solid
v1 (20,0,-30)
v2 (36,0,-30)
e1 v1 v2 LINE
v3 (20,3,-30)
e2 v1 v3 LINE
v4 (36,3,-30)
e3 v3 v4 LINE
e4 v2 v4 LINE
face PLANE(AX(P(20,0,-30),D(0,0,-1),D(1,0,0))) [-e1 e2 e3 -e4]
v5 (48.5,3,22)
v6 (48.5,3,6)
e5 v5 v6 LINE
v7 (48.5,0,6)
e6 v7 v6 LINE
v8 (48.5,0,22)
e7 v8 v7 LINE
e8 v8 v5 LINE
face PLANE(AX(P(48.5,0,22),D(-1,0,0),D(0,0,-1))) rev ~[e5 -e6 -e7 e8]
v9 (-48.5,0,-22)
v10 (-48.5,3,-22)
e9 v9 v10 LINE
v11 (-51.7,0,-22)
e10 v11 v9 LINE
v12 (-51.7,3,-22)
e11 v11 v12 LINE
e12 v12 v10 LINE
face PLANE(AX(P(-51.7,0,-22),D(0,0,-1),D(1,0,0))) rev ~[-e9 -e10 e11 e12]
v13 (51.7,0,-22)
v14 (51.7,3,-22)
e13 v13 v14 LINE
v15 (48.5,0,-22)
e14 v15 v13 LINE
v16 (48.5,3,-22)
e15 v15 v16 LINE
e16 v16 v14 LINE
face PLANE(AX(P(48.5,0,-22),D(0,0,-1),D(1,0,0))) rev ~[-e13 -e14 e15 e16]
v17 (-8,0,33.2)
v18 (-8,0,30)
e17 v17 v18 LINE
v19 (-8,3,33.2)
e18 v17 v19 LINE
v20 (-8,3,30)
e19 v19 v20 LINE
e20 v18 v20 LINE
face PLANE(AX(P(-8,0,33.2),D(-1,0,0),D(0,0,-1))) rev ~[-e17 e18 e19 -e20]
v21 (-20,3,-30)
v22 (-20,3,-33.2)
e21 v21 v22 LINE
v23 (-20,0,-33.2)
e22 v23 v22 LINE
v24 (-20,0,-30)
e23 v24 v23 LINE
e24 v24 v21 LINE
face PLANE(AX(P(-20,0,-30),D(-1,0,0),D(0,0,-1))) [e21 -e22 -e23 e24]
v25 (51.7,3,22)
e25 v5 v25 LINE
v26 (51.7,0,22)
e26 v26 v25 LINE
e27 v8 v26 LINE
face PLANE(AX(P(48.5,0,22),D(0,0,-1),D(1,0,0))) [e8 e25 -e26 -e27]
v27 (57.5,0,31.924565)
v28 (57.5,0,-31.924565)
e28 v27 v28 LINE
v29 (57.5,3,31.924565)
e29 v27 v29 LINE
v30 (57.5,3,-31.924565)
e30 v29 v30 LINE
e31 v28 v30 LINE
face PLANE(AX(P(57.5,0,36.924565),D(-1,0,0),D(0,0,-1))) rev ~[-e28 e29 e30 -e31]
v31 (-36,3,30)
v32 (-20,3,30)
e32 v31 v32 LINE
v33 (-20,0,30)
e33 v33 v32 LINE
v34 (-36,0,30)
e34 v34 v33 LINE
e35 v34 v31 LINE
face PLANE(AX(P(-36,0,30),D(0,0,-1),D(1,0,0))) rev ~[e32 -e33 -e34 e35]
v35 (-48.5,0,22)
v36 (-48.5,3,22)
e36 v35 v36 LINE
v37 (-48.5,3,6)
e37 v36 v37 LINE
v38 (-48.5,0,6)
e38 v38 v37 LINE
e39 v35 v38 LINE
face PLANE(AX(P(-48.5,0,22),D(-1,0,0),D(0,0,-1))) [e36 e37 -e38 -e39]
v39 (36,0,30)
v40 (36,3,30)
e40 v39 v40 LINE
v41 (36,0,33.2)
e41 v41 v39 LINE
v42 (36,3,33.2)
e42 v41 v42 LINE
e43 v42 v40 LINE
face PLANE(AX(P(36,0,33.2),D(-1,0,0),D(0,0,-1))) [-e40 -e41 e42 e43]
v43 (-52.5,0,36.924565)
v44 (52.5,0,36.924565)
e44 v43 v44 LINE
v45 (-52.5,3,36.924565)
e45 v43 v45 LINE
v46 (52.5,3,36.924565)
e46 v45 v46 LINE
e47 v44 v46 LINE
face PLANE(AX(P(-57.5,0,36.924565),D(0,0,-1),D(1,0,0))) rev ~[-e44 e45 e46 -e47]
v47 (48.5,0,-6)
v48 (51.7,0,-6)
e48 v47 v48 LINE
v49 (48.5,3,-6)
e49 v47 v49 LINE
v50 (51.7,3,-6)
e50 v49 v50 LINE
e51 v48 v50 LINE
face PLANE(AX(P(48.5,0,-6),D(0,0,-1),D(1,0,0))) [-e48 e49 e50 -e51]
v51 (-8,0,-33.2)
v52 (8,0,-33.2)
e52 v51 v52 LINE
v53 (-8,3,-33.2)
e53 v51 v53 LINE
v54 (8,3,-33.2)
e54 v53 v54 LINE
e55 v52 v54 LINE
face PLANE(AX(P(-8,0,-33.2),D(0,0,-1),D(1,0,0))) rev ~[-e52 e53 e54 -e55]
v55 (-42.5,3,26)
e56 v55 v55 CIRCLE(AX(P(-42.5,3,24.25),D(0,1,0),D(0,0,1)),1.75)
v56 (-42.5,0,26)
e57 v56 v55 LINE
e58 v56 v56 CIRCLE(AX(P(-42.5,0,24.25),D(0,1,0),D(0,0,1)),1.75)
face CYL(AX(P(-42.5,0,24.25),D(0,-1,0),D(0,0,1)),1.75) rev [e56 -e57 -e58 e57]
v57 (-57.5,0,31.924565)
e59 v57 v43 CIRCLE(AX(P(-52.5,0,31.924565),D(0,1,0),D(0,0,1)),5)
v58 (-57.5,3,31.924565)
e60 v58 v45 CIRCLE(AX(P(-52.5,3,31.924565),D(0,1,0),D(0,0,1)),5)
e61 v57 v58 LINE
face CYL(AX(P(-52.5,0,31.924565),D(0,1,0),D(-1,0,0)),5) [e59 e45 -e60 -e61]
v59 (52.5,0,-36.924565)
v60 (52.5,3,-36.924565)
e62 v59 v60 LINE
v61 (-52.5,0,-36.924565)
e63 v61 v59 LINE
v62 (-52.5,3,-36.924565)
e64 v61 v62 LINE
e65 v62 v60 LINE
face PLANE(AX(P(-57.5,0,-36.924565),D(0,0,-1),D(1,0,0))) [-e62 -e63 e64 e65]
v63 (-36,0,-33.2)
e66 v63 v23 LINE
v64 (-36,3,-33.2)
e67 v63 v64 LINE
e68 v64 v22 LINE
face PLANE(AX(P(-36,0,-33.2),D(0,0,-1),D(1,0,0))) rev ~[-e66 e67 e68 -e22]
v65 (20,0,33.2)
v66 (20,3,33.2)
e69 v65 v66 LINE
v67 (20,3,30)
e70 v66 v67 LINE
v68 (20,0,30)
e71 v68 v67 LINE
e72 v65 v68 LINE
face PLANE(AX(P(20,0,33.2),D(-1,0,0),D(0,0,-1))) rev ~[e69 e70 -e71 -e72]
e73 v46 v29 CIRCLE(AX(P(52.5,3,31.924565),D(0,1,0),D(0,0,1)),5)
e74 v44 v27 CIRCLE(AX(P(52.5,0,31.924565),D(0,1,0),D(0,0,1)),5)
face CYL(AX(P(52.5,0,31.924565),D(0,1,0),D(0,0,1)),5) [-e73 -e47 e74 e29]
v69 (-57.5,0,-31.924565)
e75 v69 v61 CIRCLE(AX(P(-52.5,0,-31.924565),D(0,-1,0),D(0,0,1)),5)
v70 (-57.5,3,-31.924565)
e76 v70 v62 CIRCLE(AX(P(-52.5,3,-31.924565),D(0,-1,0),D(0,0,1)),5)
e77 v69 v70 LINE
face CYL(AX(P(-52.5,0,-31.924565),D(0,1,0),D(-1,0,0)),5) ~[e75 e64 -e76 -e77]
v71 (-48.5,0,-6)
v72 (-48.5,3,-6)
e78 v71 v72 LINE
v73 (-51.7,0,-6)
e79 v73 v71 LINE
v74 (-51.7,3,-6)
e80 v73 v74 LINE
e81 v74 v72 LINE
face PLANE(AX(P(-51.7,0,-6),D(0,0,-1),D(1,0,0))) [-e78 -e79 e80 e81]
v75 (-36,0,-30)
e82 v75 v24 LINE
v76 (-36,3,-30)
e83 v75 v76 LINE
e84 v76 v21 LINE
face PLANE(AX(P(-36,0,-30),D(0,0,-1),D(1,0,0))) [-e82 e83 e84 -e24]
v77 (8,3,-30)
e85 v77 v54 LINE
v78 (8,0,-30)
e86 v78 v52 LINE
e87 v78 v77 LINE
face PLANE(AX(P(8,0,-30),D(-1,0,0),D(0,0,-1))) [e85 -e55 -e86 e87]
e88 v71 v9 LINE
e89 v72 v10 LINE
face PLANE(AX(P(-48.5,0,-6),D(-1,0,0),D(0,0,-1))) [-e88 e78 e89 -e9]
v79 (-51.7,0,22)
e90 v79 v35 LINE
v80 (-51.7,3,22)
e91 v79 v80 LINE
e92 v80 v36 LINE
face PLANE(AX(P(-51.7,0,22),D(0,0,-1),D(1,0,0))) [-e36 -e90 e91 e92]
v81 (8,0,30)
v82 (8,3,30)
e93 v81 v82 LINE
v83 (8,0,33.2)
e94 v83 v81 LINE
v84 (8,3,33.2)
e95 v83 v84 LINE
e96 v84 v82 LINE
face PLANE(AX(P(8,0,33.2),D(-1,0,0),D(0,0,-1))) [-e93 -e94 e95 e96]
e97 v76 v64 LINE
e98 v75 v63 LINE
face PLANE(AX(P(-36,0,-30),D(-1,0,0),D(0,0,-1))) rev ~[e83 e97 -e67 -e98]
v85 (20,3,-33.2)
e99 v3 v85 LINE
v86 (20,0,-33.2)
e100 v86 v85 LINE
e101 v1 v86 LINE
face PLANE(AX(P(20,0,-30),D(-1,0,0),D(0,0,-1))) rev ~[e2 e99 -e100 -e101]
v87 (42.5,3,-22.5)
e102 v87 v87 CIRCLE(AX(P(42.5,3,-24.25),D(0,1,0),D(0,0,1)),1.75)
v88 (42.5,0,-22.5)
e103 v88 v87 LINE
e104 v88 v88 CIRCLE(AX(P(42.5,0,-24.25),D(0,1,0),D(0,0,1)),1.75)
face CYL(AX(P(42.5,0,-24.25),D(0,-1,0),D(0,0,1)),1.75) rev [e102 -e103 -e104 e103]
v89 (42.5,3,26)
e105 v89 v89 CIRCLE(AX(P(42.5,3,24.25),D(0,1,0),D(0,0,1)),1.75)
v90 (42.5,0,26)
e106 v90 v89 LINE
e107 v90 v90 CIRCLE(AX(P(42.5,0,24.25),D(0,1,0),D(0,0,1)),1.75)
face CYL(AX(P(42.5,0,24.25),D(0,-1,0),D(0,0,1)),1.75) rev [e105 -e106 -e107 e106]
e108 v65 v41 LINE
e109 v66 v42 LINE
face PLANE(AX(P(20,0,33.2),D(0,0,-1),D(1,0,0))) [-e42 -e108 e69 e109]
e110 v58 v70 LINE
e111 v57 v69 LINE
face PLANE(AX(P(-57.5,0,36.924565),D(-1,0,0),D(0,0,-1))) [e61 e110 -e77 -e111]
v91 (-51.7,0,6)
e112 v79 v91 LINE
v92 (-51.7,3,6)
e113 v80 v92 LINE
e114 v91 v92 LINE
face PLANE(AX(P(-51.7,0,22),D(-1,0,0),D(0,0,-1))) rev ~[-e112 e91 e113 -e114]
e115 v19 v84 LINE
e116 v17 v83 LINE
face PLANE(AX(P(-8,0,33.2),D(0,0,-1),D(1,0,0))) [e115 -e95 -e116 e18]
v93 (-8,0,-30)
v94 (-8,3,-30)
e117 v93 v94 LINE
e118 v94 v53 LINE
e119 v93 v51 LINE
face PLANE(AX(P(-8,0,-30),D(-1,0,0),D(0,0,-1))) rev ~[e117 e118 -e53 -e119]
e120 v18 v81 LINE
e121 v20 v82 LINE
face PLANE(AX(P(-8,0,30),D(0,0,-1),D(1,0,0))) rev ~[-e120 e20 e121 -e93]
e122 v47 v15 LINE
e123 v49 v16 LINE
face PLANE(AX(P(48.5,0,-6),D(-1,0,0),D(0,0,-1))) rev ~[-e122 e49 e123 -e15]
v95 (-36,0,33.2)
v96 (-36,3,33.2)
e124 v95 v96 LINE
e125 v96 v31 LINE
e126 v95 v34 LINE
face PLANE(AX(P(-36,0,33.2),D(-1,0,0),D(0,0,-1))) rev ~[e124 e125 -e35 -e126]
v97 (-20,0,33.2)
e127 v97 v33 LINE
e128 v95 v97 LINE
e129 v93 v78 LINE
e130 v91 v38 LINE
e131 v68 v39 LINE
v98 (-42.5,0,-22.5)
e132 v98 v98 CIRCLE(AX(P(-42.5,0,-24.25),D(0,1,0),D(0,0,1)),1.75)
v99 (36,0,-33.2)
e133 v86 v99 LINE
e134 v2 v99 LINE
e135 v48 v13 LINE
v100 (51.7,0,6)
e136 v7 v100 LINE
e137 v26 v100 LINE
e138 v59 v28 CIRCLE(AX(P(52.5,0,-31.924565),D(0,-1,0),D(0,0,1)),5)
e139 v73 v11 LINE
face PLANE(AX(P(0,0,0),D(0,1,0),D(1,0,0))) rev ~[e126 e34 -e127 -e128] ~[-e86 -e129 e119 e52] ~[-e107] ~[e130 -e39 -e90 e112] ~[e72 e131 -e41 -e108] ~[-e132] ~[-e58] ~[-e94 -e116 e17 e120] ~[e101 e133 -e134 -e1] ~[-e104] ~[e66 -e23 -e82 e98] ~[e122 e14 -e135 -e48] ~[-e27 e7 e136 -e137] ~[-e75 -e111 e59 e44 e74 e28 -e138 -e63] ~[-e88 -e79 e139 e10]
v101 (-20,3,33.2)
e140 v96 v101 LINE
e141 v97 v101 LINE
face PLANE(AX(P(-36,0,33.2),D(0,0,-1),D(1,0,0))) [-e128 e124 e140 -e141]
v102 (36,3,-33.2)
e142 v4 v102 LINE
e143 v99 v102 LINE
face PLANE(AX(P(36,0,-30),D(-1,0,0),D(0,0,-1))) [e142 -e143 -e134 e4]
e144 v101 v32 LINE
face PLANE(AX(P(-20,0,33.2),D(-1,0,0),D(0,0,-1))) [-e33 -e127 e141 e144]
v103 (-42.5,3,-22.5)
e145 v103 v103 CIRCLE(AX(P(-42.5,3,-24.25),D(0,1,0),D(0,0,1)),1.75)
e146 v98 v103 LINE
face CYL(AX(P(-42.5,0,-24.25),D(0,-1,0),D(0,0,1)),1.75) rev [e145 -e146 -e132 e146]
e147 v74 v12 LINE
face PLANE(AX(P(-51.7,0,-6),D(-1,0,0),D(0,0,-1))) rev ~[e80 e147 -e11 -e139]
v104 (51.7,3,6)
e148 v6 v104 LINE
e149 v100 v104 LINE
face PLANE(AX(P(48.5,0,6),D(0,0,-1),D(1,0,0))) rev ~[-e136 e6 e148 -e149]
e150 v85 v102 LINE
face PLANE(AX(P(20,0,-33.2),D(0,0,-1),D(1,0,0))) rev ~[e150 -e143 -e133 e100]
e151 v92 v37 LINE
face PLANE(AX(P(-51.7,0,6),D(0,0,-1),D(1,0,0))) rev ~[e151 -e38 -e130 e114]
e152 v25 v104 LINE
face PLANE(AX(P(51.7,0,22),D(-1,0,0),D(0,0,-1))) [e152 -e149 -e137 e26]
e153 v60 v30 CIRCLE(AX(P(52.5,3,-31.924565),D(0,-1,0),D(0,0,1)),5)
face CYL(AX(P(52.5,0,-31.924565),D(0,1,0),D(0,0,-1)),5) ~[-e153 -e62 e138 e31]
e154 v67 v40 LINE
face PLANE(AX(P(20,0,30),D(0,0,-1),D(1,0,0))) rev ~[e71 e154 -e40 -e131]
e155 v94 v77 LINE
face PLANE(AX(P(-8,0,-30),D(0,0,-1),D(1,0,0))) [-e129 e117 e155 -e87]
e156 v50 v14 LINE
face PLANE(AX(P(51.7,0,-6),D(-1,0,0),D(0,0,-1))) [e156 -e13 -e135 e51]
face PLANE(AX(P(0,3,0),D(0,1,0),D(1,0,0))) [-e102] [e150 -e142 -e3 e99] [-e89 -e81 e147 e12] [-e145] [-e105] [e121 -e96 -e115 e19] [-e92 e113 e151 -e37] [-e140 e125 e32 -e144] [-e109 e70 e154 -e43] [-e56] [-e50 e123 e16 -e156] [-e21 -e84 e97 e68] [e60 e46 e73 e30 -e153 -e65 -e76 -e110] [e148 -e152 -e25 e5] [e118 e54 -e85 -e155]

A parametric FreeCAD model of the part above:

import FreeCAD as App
import Part
import Sketcher

V = App.Vector


def edges_at(feature, points):
    """Names of the edges that pass closest to the given points."""
    edges = feature.Shape.Edges
    near = lambda p: min(range(len(edges)), key=lambda i: edges[i].distToShape(Part.Vertex(*p))[0])
    return sorted({f"Edge{near(p) + 1}" for p in points})


def add_polygon(sketch, points):
    """Adds a closed chain of lines whose ends are joined by coincident constraints."""
    first, n = sketch.GeometryCount, len(points)
    for a, b in zip(points, points[1:] + points[:1]):
        sketch.addGeometry(Part.LineSegment(App.Vector(*a, 0), App.Vector(*b, 0)), False)
    for i in range(n):
        sketch.addConstraint(Sketcher.Constraint("Coincident", first + i, 2, first + (i + 1) % n, 1))

doc = App.newDocument("Part")
params = doc.addObject("Spreadsheet::Sheet", "Params")
for row, (alias, value) in enumerate([
    ("sketch1_diameter", "3.5 mm"),
    ("sketch1_width", "115 mm"),
    ("sketch1_width2", "16 mm"),
    ("sketch1_width3", "3.2 mm"),
    ("pad1_length", "3 mm"),
    ("fillet_radius", "5 mm"),
], start=1):
    params.set(f"A{row}", alias)
    params.set(f"B{row}", "=" + value)
    params.setAlias(f"B{row}", alias)

body = doc.addObject("PartDesign::Body", "Body")

sketch1 = body.newObject("Sketcher::SketchObject", "Sketch")
sketch1.AttachmentSupport = (doc.getObject("XZ_Plane"), [""])
sketch1.MapMode = "FlatFace"
add_polygon(sketch1, [(-57.5, -36.924565), (-57.5, 36.924565), (57.5, 36.924565), (57.5, -36.924565)])
add_polygon(sketch1, [(-20, 33.2), (-36, 33.2), (-36, 30), (-20, 30)])
sketch1.addGeometry(Part.Circle(V(-42.5, 24.25, 0), V(0, 0, 1), 1.75), False)
add_polygon(sketch1, [(-48.5, 22), (-51.7, 22), (-51.7, 6), (-48.5, 6)])
add_polygon(sketch1, [(8, 33.2), (-8, 33.2), (-8, 30), (8, 30)])
add_polygon(sketch1, [(36, 33.2), (20, 33.2), (20, 30), (36, 30)])
sketch1.addGeometry(Part.Circle(V(42.5, 24.25, 0), V(0, 0, 1), 1.75), False)
add_polygon(sketch1, [(51.7, 22), (48.5, 22), (48.5, 6), (51.7, 6)])
add_polygon(sketch1, [(-48.5, -6), (-51.7, -6), (-51.7, -22), (-48.5, -22)])
sketch1.addGeometry(Part.Circle(V(-42.5, -24.25, 0), V(0, 0, 1), 1.75), False)
add_polygon(sketch1, [(-20, -30), (-36, -30), (-36, -33.2), (-20, -33.2)])
add_polygon(sketch1, [(51.7, -6), (48.5, -6), (48.5, -22), (51.7, -22)])
add_polygon(sketch1, [(8, -30), (-8, -30), (-8, -33.2), (8, -33.2)])
sketch1.addGeometry(Part.Circle(V(42.5, -24.25, 0), V(0, 0, 1), 1.75), False)
add_polygon(sketch1, [(36, -30), (20, -30), (20, -33.2), (36, -33.2)])
sketch1.addConstraint([
    Sketcher.Constraint("Vertical", 0),
    Sketcher.Constraint("Horizontal", 1),
    Sketcher.Constraint("Vertical", 2),
    Sketcher.Constraint("Horizontal", 3),
    Sketcher.Constraint("Horizontal", 4),
    Sketcher.Constraint("Vertical", 5),
    Sketcher.Constraint("Horizontal", 6),
    Sketcher.Constraint("Vertical", 7),
    Sketcher.Constraint("Horizontal", 9),
    Sketcher.Constraint("Vertical", 10),
    Sketcher.Constraint("Horizontal", 11),
    Sketcher.Constraint("Vertical", 12),
    Sketcher.Constraint("Horizontal", 13),
    Sketcher.Constraint("Vertical", 14),
    Sketcher.Constraint("Horizontal", 15),
    Sketcher.Constraint("Vertical", 16),
    Sketcher.Constraint("Horizontal", 17),
    Sketcher.Constraint("Vertical", 18),
    Sketcher.Constraint("Horizontal", 19),
    Sketcher.Constraint("Vertical", 20),
    Sketcher.Constraint("Horizontal", 22),
    Sketcher.Constraint("Vertical", 23),
    Sketcher.Constraint("Horizontal", 24),
    Sketcher.Constraint("Vertical", 25),
    Sketcher.Constraint("Horizontal", 26),
    Sketcher.Constraint("Vertical", 27),
    Sketcher.Constraint("Horizontal", 28),
    Sketcher.Constraint("Vertical", 29),
    Sketcher.Constraint("Horizontal", 31),
    Sketcher.Constraint("Vertical", 32),
    Sketcher.Constraint("Horizontal", 33),
    Sketcher.Constraint("Vertical", 34),
    Sketcher.Constraint("Horizontal", 35),
    Sketcher.Constraint("Vertical", 36),
    Sketcher.Constraint("Horizontal", 37),
    Sketcher.Constraint("Vertical", 38),
    Sketcher.Constraint("Horizontal", 39),
    Sketcher.Constraint("Vertical", 40),
    Sketcher.Constraint("Horizontal", 41),
    Sketcher.Constraint("Vertical", 42),
    Sketcher.Constraint("Horizontal", 44),
    Sketcher.Constraint("Vertical", 45),
    Sketcher.Constraint("Horizontal", 46),
    Sketcher.Constraint("Vertical", 47),
    Sketcher.Constraint("Equal", 8, 21),
    Sketcher.Constraint("Equal", 21, 30),
    Sketcher.Constraint("Equal", 30, 43),
    Sketcher.Constraint("Symmetric", 21, 3, 30, 3, -1, 1),
    Sketcher.Constraint("Symmetric", 8, 3, 43, 3, -1, 1),
    Sketcher.Constraint("Symmetric", 0, 2, 2, 2, -1, 1),
    Sketcher.Constraint("Symmetric", 24, 2, 26, 2, -1, 1),
    Sketcher.Constraint("Symmetric", 22, 2, 28, 2, -1, 1),
    Sketcher.Constraint("Symmetric", 19, 2, 31, 2, -1, 1),
    Sketcher.Constraint("Symmetric", 17, 2, 33, 2, -1, 1),
    Sketcher.Constraint("Symmetric", 11, 2, 35, 2, -1, 1),
    Sketcher.Constraint("Symmetric", 9, 2, 37, 2, -1, 1),
    Sketcher.Constraint("Symmetric", 15, 2, 39, 2, -1, 1),
    Sketcher.Constraint("Symmetric", 13, 2, 41, 2, -1, 1),
    Sketcher.Constraint("Symmetric", 6, 2, 44, 2, -1, 1),
    Sketcher.Constraint("Symmetric", 4, 2, 46, 2, -1, 1),
    Sketcher.Constraint("Symmetric", 8, 3, 21, 3, -2),
    Sketcher.Constraint("Symmetric", 7, 2, 17, 2, -2),
    Sketcher.Constraint("Symmetric", 5, 2, 19, 2, -2),
    Sketcher.Constraint("Symmetric", 12, 2, 22, 2, -2),
    Sketcher.Constraint("Symmetric", 10, 2, 24, 2, -2),
    Sketcher.Constraint("Horizontal", 7, 2, 13, 2),
    Sketcher.Constraint("Horizontal", 6, 2, 14, 2),
    Sketcher.Constraint("Vertical", 14, 2, 39, 2),
    Sketcher.Constraint("Equal", 6, 13),
    Sketcher.Constraint("Equal", 37, 5),
    Sketcher.Constraint("Equal", 46, 10),
    Sketcher.Constraint("Diameter", 8, 3.5),
    Sketcher.Constraint("DistanceX", 1, 1, 1, 2, 115.0),
    Sketcher.Constraint("DistanceX", 4, 2, 4, 1, 16.0),
    Sketcher.Constraint("DistanceX", 9, 2, 9, 1, 3.2),
    Sketcher.Constraint("DistanceX", 4, 2, -1, 1, 36.0),
    Sketcher.Constraint("DistanceY", -1, 1, 5, 2, 30.0),
    Sketcher.Constraint("DistanceY", -1, 1, 9, 2, 22.0),
    Sketcher.Constraint("DistanceX", 8, 3, 21, 3, 85.0),
    Sketcher.Constraint("DistanceX", 11, 2, 8, 3, 6.0),
    Sketcher.Constraint("DistanceY", 30, 3, 8, 3, 48.5),
    Sketcher.Constraint("DistanceY", 0, 1, 0, 2, 73.84913),
])
sketch1.setExpression("Constraints[115]", "Params.sketch1_diameter")
sketch1.setExpression("Constraints[116]", "Params.sketch1_width")
sketch1.setExpression("Constraints[117]", "Params.sketch1_width2")
sketch1.setExpression("Constraints[118]", "Params.sketch1_width3")
pad1 = body.newObject("PartDesign::Pad", "Pad")
pad1.Profile = sketch1
pad1.setExpression("Length", "Params.pad1_length")
pad1.Reversed = True
doc.recompute()

fillet = body.newObject("PartDesign::Fillet", "Fillet")
fillet.Base = (pad1, edges_at(pad1, [
    (57.5, 1.5, 36.925),
    (-57.5, 1.5, 36.925),
    (-57.5, 1.5, -36.925),
    (57.5, 1.5, -36.925),
]))
fillet.setExpression("Radius", "Params.fillet_radius")

doc.recompute()
